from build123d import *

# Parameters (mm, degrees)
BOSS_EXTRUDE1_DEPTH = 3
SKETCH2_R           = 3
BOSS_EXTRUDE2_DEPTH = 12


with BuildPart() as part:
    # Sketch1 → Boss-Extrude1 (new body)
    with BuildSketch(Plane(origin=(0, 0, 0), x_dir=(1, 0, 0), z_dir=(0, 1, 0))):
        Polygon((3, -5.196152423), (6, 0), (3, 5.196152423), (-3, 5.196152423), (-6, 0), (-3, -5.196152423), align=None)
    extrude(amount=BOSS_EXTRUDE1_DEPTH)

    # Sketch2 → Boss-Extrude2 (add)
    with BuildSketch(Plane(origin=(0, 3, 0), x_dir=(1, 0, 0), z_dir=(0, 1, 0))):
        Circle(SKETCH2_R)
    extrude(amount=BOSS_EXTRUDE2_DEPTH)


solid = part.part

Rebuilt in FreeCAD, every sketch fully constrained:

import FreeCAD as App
import Part
import Sketcher
Q = App.Units.Quantity


def add_polygon(sketch, points):
    """Adds a closed chain of lines whose ends are joined by coincident constraints."""
    first, n = sketch.GeometryCount, len(points)
    for a, b in zip(points, points[1:] + points[:1]):
        sketch.addGeometry(Part.LineSegment(App.Vector(*a, 0), App.Vector(*b, 0)), False)
    for i in range(n):
        sketch.addConstraint(Sketcher.Constraint("Coincident", first + i, 2, first + (i + 1) % n, 1))

doc = App.newDocument("Part")
body = doc.addObject("PartDesign::Body", "Body")

sketch1 = doc.addObject("Sketcher::SketchObject", "Sketch")
body.addObject(sketch1)
sketch1.AttachmentSupport = (doc.XZ_Plane, [""])
sketch1.MapMode = "FlatFace"
add_polygon(sketch1, [(3, 5), (6, 0), (3, -5), (-3, -5), (-6, 0), (-3, 5)])
sketch1.addConstraint([
    Sketcher.Constraint("Horizontal", 2),
    Sketcher.Constraint("Horizontal", 5),
    Sketcher.Constraint("Symmetric", 0, 2, 3, 2, -1, 1),
    Sketcher.Constraint("Symmetric", 1, 2, 4, 2, -1, 1),
    Sketcher.Constraint("PointOnObject", 0, 2, -1),
    Sketcher.Constraint("Parallel", 0, 3),
    Sketcher.Constraint("Vertical", 2, 2, 4, 2),
    Sketcher.Constraint("DistanceX", 2, 2, 2, 1, Q("6 mm")),
    Sketcher.Constraint("Angle", 0, Q("-60 deg")),
    Sketcher.Constraint("Distance", 0, Q("6 mm")),
])
pad1 = doc.addObject("PartDesign::Pad", "Pad")
body.addObject(pad1)
pad1.Profile = sketch1
pad1.Length = 3
pad1.Reversed = True

sketch2 = doc.addObject("Sketcher::SketchObject", "Sketch001")
body.addObject(sketch2)
sketch2.AttachmentSupport = (doc.XZ_Plane, [""])
sketch2.MapMode = "FlatFace"
sketch2.AttachmentOffset = App.Placement(App.Vector(0, 0, -3), App.Rotation())
sketch2.addGeometry(Part.Circle(App.Vector(0, 0, 0), App.Vector(0, 0, 1), 3), False)
sketch2.addConstraint([
    Sketcher.Constraint("Coincident", 0, 3, -1, 1),
    Sketcher.Constraint("Diameter", 0, Q("6 mm")),
])
pad2 = doc.addObject("PartDesign::Pad", "Pad001")
body.addObject(pad2)
pad2.Profile = sketch2
pad2.Length = 12
pad2.Reversed = True

doc.recompute()
